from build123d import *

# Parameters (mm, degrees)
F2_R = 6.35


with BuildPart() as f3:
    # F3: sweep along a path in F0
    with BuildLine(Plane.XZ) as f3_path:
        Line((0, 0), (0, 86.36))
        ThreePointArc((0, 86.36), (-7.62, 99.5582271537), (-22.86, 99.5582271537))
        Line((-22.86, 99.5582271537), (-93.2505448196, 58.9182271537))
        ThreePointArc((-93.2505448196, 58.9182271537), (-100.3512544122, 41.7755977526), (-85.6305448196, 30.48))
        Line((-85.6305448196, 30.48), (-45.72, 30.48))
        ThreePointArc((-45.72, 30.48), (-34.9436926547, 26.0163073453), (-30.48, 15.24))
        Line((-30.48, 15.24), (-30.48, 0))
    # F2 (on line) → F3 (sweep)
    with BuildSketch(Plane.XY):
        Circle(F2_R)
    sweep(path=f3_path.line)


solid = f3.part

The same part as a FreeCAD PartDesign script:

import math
import FreeCAD as App
import Part
import Sketcher
Q = App.Units.Quantity

doc = App.newDocument("Part")
body = doc.addObject("PartDesign::Body", "Body")

sketch1 = body.newObject("Sketcher::SketchObject", "Sketch")
sketch1.AttachmentSupport = (doc.getObject("XY_Plane"), [""])
sketch1.MapMode = "FlatFace"
sketch1.addGeometry(Part.Circle(App.Vector(0, 0, 0), App.Vector(0, 0, 1), 6), False)
sketch1.addConstraint([
    Sketcher.Constraint("Coincident", 0, 3, -1, 1),
    Sketcher.Constraint("Diameter", 0, Q("0.5 in")),
])

sketch2 = body.newObject("Sketcher::SketchObject", "Sketch001")
sketch2.AttachmentSupport = (doc.getObject("XZ_Plane"), [""])
sketch2.MapMode = "FlatFace"
sketch2.addGeometry([
    Part.LineSegment(App.Vector(0, 0, 0), App.Vector(0, 86, 0)),
    Part.ArcOfCircle(Part.Circle(App.Vector(-15, 86, 0), App.Vector(0, 0, 1), 15), math.radians(0), math.radians(120)),
    Part.LineSegment(App.Vector(-23, 100, 0), App.Vector(-93, 59, 0)),
    Part.ArcOfCircle(Part.Circle(App.Vector(-86, 46, 0), App.Vector(0, 0, 1), 15), math.radians(120), math.radians(270)),
    Part.LineSegment(App.Vector(-86, 30, 0), App.Vector(-46, 30, 0)),
    Part.ArcOfCircle(Part.Circle(App.Vector(-46, 15, 0), App.Vector(0, 0, 1), 15), math.radians(0), math.radians(90)),
    Part.LineSegment(App.Vector(-30, 15, 0), App.Vector(-30, 0, 0)),
], False)
sketch2.addConstraint([
    Sketcher.Constraint("Tangent", 0, 2, 1, 1),
    Sketcher.Constraint("Tangent", 1, 2, 2, 1),
    Sketcher.Constraint("Tangent", 2, 2, 3, 1),
    Sketcher.Constraint("Tangent", 3, 2, 4, 1),
    Sketcher.Constraint("Tangent", 4, 2, 5, 2),
    Sketcher.Constraint("Tangent", 5, 1, 6, 1),
    Sketcher.Constraint("Vertical", 0),
    Sketcher.Constraint("Horizontal", 4),
    Sketcher.Constraint("Vertical", 6),
    Sketcher.Constraint("Coincident", 0, 1, -1, 1),
    Sketcher.Constraint("Equal", 1, 3),
    Sketcher.Constraint("Equal", 3, 5),
    Sketcher.Constraint("PointOnObject", 6, 2, -1),
    Sketcher.Constraint("Radius", 1, Q("0.6 in")),
    Sketcher.Constraint("DistanceY", 0, 1, 0, 2, Q("3.4 in")),
    Sketcher.Constraint("DistanceY", 6, 2, 6, 1, Q("0.6 in")),
    Sketcher.Constraint("Angle", 2, Q("-150 deg")),
    Sketcher.Constraint("DistanceX", 5, 3, -1, 1, Q("1.8 in")),
])
doc.recompute()

additivepipe = body.newObject("PartDesign::AdditivePipe", "AdditivePipe")
additivepipe.Profile = sketch1
additivepipe.Spine = (sketch2, ["Edge1", "Edge2", "Edge3", "Edge4", "Edge5", "Edge6", "Edge7"])

doc.recompute()
